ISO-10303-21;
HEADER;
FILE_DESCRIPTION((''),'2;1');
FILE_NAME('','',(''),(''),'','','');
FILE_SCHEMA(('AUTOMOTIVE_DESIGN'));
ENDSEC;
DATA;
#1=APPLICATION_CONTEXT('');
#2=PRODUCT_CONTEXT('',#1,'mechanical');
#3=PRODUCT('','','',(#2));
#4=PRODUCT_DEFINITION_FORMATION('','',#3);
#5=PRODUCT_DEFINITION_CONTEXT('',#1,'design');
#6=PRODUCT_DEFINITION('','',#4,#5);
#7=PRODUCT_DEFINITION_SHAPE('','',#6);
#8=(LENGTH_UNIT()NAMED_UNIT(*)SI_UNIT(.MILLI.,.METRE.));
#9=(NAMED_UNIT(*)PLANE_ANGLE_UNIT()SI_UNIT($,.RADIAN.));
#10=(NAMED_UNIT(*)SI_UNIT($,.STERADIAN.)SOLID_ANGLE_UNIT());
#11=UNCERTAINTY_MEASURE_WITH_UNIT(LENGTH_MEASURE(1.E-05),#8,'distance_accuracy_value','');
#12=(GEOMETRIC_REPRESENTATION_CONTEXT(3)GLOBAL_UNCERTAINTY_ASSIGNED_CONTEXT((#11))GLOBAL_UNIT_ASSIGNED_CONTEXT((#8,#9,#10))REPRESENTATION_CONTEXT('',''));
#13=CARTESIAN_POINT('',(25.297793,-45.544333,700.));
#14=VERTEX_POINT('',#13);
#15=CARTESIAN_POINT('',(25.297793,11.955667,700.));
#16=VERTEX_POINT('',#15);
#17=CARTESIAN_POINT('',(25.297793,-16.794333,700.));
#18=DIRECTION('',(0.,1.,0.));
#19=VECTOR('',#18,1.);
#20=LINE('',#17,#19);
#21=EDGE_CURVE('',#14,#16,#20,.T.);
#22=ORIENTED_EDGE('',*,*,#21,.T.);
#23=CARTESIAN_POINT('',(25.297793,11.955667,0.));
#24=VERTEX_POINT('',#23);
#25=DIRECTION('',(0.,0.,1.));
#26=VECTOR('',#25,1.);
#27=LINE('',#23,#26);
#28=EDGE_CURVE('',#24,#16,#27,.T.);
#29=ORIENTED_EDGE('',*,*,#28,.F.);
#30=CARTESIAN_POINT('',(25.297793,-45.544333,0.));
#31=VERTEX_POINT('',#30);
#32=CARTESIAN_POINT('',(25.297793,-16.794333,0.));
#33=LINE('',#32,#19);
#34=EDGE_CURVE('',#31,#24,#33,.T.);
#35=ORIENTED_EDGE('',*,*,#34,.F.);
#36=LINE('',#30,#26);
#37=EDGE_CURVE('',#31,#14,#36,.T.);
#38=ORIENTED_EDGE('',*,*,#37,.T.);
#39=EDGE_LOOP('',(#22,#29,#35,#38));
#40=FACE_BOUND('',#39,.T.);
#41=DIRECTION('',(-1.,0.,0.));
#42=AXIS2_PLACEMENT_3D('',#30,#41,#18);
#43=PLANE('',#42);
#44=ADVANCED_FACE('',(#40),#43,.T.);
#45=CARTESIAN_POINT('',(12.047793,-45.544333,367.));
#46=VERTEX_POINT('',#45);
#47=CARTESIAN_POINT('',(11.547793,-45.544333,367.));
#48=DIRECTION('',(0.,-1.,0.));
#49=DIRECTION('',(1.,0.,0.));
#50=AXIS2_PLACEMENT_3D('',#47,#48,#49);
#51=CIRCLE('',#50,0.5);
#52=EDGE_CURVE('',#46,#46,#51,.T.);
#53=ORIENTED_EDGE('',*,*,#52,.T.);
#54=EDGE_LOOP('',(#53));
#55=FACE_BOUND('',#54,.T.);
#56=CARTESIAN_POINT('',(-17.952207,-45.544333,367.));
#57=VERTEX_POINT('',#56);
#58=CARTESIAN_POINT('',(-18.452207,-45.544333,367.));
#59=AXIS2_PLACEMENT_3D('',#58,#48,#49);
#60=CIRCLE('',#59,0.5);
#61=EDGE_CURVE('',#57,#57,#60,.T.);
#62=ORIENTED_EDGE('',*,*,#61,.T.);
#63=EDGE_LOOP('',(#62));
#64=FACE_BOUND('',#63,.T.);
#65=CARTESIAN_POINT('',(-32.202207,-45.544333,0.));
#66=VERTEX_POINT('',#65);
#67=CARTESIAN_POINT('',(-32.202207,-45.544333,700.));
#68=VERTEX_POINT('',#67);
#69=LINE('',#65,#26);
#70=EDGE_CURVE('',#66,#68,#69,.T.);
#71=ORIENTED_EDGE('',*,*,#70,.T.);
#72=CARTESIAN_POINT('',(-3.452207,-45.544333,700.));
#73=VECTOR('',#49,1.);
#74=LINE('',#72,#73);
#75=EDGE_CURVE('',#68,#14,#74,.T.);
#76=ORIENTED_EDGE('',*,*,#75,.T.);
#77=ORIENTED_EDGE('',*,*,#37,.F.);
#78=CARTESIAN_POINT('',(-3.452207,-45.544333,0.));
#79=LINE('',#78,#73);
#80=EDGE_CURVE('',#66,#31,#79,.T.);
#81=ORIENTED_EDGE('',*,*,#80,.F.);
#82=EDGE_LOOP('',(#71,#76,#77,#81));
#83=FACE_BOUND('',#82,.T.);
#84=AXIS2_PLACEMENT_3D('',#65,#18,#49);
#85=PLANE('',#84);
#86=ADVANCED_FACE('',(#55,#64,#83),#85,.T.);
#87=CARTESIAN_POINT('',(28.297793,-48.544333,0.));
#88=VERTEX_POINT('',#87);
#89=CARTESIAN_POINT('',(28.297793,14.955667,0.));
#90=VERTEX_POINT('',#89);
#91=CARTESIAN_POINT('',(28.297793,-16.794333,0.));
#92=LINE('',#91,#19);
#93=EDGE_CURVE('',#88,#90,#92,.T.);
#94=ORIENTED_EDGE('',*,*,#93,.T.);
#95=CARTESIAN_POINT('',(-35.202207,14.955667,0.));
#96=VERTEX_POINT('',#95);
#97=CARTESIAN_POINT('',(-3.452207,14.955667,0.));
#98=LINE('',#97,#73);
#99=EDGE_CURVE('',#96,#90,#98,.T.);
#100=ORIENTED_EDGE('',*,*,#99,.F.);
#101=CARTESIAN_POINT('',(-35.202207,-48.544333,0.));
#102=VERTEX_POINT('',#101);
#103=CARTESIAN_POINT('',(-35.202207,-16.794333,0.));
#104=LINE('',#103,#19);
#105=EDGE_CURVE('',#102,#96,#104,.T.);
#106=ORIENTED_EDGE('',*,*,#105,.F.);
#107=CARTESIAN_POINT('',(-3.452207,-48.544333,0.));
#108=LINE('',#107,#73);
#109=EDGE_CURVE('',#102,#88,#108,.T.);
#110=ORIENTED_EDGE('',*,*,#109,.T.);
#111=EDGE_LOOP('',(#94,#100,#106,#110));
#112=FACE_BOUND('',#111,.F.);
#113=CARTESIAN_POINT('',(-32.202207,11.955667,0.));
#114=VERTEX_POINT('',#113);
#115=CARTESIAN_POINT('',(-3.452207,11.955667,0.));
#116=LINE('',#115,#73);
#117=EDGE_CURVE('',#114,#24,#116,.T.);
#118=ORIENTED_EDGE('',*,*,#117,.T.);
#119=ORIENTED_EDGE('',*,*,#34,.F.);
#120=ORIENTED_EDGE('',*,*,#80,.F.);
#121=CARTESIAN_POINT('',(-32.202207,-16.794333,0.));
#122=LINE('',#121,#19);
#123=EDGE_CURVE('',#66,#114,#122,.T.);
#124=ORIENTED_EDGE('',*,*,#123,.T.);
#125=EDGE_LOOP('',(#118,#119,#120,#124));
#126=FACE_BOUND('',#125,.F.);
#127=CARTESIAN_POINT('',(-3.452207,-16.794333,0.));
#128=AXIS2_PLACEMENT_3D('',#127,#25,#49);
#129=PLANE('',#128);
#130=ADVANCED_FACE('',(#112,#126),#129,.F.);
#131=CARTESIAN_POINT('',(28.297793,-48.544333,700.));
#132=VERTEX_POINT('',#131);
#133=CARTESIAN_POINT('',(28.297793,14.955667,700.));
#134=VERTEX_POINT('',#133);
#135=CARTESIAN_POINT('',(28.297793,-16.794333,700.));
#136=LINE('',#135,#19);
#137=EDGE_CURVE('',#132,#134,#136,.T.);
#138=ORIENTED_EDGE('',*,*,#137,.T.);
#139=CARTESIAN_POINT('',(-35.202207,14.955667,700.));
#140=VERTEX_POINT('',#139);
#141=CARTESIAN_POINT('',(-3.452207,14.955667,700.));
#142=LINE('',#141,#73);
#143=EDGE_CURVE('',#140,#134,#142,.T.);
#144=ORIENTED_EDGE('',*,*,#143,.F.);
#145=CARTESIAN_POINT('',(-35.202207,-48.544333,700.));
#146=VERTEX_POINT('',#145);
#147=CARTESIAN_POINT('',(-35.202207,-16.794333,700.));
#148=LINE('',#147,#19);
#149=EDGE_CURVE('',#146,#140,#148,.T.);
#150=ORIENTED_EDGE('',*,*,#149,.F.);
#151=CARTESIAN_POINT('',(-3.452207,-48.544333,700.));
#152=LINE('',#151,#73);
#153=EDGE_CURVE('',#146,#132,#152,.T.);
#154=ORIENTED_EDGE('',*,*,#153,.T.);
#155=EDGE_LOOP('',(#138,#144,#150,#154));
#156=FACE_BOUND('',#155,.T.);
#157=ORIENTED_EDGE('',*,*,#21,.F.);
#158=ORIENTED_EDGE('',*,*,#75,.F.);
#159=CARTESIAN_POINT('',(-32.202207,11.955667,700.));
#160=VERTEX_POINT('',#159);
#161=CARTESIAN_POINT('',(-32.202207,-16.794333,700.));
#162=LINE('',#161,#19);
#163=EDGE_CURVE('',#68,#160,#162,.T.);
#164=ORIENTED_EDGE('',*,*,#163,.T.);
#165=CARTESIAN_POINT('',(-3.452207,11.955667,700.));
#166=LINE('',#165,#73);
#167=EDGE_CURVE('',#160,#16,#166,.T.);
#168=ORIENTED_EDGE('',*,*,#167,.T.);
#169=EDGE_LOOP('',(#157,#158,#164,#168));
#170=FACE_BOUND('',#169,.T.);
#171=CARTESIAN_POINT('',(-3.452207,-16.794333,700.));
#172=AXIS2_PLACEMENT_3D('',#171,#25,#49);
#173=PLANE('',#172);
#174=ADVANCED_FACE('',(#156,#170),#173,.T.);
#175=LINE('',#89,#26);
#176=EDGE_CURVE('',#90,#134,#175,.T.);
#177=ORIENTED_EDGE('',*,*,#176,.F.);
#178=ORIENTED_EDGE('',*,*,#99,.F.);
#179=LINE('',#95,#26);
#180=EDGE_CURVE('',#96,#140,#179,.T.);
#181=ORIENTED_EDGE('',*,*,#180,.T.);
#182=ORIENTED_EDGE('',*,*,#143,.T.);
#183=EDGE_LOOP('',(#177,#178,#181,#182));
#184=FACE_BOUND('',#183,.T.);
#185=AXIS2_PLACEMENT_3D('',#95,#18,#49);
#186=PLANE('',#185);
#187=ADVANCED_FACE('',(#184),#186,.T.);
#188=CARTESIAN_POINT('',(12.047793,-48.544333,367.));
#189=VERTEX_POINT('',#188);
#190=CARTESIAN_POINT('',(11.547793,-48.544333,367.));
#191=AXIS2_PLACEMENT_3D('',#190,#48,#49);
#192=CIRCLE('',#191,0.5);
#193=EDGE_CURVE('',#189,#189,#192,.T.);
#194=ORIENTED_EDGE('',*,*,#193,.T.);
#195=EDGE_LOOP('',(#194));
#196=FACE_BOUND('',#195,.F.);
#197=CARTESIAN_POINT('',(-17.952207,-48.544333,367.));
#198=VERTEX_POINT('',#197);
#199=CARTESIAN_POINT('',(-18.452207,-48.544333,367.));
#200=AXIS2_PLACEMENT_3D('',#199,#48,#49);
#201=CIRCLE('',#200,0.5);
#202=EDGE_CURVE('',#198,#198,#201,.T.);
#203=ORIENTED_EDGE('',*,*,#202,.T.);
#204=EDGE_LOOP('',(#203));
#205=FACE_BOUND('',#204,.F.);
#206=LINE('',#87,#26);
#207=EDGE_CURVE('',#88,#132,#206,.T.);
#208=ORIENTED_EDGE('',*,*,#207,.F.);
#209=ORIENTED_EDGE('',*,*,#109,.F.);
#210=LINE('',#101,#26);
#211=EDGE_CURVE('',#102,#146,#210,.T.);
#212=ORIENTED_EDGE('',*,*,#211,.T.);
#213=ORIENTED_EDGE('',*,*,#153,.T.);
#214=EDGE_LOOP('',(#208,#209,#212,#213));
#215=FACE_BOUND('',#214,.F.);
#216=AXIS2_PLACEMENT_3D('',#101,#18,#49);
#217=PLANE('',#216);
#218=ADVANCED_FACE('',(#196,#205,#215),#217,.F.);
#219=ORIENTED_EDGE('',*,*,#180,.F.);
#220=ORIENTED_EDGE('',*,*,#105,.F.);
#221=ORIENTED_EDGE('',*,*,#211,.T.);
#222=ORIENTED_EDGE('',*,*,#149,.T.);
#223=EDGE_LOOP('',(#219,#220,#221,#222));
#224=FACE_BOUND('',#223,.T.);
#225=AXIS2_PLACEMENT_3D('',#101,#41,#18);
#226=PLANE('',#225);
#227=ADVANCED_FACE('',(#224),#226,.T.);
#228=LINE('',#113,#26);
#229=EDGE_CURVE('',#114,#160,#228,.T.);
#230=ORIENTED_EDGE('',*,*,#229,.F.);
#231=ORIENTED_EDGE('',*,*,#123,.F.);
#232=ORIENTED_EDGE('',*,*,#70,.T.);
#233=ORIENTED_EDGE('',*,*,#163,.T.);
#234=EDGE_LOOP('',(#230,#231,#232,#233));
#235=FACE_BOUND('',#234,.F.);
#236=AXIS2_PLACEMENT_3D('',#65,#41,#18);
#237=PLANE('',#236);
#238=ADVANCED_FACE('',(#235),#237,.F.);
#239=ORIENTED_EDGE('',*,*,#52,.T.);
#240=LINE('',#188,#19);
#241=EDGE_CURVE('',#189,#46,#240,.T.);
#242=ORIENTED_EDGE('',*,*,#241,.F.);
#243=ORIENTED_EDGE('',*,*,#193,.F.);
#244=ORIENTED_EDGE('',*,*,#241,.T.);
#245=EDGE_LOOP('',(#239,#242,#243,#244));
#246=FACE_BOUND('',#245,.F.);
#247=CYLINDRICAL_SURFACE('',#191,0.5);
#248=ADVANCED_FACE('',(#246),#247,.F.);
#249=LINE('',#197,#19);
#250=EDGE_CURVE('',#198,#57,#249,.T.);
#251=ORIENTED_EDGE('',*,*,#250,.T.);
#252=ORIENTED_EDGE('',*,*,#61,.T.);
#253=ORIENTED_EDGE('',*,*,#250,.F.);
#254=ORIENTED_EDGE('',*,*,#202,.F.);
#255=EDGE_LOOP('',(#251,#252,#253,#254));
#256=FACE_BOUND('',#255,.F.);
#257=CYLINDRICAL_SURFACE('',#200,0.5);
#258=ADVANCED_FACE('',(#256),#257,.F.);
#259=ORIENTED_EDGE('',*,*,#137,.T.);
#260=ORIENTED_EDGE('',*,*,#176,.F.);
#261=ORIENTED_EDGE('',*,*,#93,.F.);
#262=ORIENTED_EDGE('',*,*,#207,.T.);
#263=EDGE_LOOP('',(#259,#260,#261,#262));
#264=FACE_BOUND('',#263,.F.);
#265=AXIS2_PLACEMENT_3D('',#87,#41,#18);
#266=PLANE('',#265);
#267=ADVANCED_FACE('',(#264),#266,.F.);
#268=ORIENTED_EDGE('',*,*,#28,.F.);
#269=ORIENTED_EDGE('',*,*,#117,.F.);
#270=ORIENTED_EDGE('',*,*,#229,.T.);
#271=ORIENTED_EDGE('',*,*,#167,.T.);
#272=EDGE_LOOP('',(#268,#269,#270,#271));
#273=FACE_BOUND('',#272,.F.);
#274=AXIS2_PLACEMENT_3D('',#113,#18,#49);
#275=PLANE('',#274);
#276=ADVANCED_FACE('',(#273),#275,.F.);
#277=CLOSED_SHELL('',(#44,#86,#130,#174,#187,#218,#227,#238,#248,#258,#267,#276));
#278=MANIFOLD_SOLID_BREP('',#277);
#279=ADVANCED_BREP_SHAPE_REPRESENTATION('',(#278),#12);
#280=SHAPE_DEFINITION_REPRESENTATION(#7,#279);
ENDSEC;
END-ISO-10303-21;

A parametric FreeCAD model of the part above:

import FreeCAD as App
import Part
import Sketcher
from FreeCAD import Vector
Q = App.Units.Quantity


def add_polygon(sketch, points):
    """Adds a closed chain of lines whose ends are joined by coincident constraints."""
    first, n = sketch.GeometryCount, len(points)
    for a, b in zip(points, points[1:] + points[:1]):
        sketch.addGeometry(Part.LineSegment(App.Vector(*a, 0), App.Vector(*b, 0)), False)
    for i in range(n):
        sketch.addConstraint(Sketcher.Constraint("Coincident", first + i, 2, first + (i + 1) % n, 1))

doc = App.newDocument("Part")
params = doc.addObject("Spreadsheet::Sheet", "Params")
for row, (alias, value) in enumerate([
    ("sketch1_width", "63.5 mm"),
    ("sketch1_width2", "57.5 mm"),
    ("pad1_length", "700 mm"),
    ("sketch2_diameter", "1 mm"),
    ("pocket1_length", "3 mm"),
], start=1):
    params.set(f"A{row}", alias)
    params.set(f"B{row}", "=" + value)
    params.setAlias(f"B{row}", alias)

body = doc.addObject("PartDesign::Body", "Body")

sketch1 = body.newObject("Sketcher::SketchObject", "Sketch")
sketch1.AttachmentSupport = (doc.getObject("XY_Plane"), [""])
sketch1.MapMode = "FlatFace"
add_polygon(sketch1, [(-35, 15), (-35, -49), (28, -49), (28, 15)])
add_polygon(sketch1, [(25, -46), (-32, -46), (-32, 12), (25, 12)])
sketch1.addConstraint([
    Sketcher.Constraint("Vertical", 0),
    Sketcher.Constraint("Horizontal", 1),
    Sketcher.Constraint("Vertical", 2),
    Sketcher.Constraint("Horizontal", 3),
    Sketcher.Constraint("Horizontal", 4),
    Sketcher.Constraint("Vertical", 5),
    Sketcher.Constraint("Horizontal", 6),
    Sketcher.Constraint("Vertical", 7),
    Sketcher.Constraint("Equal", 3, 0),
    Sketcher.Constraint("Equal", 6, 5),
    Sketcher.Constraint("DistanceX", 1, 1, 1, 2, Q("63.5 mm")),
    Sketcher.Constraint("DistanceX", 4, 2, 4, 1, Q("57.5 mm")),
    Sketcher.Constraint("DistanceX", 0, 2, 4, 2, Q("3 mm")),
    Sketcher.Constraint("DistanceY", 0, 2, 4, 2, Q("3 mm")),
    Sketcher.Constraint("DistanceX", 0, 2, -1, 1, Q("35.202207 mm")),
    Sketcher.Constraint("DistanceY", 0, 2, -1, 1, Q("48.544333 mm")),
])
sketch1.setExpression("Constraints[18]", "Params.sketch1_width")
sketch1.setExpression("Constraints[19]", "Params.sketch1_width2")
pad1 = body.newObject("PartDesign::Pad", "Pad")
pad1.Profile = sketch1
pad1.setExpression("Length", "Params.pad1_length")

sketch2 = body.newObject("Sketcher::SketchObject", "Sketch001")
sketch2.AttachmentSupport = (doc.getObject("XZ_Plane"), [""])
sketch2.MapMode = "FlatFace"
sketch2.AttachmentOffset = App.Placement(Vector(0, 0, 48.544333), App.Rotation())
sketch2.addGeometry([
    Part.Circle(Vector(-18.5, 367, 0), Vector(0, 0, 1), 0.5),
    Part.Circle(Vector(11.5, 367, 0), Vector(0, 0, 1), 0.5),
], False)
sketch2.addConstraint([
    Sketcher.Constraint("Equal", 0, 1),
    Sketcher.Constraint("Horizontal", 0, 3, 1, 3),
    Sketcher.Constraint("Diameter", 0, Q("1 mm")),
    Sketcher.Constraint("DistanceY", -1, 1, 0, 3, Q("367 mm")),
    Sketcher.Constraint("DistanceX", 0, 3, 1, 3, Q("30 mm")),
    Sketcher.Constraint("DistanceX", 0, 3, -1, 1, Q("18.452207 mm")),
])
sketch2.setExpression("Constraints[2]", "Params.sketch2_diameter")
pocket1 = body.newObject("PartDesign::Pocket", "Pocket")
pocket1.Profile = sketch2
pocket1.setExpression("Length", "Params.pocket1_length")

doc.recompute()
